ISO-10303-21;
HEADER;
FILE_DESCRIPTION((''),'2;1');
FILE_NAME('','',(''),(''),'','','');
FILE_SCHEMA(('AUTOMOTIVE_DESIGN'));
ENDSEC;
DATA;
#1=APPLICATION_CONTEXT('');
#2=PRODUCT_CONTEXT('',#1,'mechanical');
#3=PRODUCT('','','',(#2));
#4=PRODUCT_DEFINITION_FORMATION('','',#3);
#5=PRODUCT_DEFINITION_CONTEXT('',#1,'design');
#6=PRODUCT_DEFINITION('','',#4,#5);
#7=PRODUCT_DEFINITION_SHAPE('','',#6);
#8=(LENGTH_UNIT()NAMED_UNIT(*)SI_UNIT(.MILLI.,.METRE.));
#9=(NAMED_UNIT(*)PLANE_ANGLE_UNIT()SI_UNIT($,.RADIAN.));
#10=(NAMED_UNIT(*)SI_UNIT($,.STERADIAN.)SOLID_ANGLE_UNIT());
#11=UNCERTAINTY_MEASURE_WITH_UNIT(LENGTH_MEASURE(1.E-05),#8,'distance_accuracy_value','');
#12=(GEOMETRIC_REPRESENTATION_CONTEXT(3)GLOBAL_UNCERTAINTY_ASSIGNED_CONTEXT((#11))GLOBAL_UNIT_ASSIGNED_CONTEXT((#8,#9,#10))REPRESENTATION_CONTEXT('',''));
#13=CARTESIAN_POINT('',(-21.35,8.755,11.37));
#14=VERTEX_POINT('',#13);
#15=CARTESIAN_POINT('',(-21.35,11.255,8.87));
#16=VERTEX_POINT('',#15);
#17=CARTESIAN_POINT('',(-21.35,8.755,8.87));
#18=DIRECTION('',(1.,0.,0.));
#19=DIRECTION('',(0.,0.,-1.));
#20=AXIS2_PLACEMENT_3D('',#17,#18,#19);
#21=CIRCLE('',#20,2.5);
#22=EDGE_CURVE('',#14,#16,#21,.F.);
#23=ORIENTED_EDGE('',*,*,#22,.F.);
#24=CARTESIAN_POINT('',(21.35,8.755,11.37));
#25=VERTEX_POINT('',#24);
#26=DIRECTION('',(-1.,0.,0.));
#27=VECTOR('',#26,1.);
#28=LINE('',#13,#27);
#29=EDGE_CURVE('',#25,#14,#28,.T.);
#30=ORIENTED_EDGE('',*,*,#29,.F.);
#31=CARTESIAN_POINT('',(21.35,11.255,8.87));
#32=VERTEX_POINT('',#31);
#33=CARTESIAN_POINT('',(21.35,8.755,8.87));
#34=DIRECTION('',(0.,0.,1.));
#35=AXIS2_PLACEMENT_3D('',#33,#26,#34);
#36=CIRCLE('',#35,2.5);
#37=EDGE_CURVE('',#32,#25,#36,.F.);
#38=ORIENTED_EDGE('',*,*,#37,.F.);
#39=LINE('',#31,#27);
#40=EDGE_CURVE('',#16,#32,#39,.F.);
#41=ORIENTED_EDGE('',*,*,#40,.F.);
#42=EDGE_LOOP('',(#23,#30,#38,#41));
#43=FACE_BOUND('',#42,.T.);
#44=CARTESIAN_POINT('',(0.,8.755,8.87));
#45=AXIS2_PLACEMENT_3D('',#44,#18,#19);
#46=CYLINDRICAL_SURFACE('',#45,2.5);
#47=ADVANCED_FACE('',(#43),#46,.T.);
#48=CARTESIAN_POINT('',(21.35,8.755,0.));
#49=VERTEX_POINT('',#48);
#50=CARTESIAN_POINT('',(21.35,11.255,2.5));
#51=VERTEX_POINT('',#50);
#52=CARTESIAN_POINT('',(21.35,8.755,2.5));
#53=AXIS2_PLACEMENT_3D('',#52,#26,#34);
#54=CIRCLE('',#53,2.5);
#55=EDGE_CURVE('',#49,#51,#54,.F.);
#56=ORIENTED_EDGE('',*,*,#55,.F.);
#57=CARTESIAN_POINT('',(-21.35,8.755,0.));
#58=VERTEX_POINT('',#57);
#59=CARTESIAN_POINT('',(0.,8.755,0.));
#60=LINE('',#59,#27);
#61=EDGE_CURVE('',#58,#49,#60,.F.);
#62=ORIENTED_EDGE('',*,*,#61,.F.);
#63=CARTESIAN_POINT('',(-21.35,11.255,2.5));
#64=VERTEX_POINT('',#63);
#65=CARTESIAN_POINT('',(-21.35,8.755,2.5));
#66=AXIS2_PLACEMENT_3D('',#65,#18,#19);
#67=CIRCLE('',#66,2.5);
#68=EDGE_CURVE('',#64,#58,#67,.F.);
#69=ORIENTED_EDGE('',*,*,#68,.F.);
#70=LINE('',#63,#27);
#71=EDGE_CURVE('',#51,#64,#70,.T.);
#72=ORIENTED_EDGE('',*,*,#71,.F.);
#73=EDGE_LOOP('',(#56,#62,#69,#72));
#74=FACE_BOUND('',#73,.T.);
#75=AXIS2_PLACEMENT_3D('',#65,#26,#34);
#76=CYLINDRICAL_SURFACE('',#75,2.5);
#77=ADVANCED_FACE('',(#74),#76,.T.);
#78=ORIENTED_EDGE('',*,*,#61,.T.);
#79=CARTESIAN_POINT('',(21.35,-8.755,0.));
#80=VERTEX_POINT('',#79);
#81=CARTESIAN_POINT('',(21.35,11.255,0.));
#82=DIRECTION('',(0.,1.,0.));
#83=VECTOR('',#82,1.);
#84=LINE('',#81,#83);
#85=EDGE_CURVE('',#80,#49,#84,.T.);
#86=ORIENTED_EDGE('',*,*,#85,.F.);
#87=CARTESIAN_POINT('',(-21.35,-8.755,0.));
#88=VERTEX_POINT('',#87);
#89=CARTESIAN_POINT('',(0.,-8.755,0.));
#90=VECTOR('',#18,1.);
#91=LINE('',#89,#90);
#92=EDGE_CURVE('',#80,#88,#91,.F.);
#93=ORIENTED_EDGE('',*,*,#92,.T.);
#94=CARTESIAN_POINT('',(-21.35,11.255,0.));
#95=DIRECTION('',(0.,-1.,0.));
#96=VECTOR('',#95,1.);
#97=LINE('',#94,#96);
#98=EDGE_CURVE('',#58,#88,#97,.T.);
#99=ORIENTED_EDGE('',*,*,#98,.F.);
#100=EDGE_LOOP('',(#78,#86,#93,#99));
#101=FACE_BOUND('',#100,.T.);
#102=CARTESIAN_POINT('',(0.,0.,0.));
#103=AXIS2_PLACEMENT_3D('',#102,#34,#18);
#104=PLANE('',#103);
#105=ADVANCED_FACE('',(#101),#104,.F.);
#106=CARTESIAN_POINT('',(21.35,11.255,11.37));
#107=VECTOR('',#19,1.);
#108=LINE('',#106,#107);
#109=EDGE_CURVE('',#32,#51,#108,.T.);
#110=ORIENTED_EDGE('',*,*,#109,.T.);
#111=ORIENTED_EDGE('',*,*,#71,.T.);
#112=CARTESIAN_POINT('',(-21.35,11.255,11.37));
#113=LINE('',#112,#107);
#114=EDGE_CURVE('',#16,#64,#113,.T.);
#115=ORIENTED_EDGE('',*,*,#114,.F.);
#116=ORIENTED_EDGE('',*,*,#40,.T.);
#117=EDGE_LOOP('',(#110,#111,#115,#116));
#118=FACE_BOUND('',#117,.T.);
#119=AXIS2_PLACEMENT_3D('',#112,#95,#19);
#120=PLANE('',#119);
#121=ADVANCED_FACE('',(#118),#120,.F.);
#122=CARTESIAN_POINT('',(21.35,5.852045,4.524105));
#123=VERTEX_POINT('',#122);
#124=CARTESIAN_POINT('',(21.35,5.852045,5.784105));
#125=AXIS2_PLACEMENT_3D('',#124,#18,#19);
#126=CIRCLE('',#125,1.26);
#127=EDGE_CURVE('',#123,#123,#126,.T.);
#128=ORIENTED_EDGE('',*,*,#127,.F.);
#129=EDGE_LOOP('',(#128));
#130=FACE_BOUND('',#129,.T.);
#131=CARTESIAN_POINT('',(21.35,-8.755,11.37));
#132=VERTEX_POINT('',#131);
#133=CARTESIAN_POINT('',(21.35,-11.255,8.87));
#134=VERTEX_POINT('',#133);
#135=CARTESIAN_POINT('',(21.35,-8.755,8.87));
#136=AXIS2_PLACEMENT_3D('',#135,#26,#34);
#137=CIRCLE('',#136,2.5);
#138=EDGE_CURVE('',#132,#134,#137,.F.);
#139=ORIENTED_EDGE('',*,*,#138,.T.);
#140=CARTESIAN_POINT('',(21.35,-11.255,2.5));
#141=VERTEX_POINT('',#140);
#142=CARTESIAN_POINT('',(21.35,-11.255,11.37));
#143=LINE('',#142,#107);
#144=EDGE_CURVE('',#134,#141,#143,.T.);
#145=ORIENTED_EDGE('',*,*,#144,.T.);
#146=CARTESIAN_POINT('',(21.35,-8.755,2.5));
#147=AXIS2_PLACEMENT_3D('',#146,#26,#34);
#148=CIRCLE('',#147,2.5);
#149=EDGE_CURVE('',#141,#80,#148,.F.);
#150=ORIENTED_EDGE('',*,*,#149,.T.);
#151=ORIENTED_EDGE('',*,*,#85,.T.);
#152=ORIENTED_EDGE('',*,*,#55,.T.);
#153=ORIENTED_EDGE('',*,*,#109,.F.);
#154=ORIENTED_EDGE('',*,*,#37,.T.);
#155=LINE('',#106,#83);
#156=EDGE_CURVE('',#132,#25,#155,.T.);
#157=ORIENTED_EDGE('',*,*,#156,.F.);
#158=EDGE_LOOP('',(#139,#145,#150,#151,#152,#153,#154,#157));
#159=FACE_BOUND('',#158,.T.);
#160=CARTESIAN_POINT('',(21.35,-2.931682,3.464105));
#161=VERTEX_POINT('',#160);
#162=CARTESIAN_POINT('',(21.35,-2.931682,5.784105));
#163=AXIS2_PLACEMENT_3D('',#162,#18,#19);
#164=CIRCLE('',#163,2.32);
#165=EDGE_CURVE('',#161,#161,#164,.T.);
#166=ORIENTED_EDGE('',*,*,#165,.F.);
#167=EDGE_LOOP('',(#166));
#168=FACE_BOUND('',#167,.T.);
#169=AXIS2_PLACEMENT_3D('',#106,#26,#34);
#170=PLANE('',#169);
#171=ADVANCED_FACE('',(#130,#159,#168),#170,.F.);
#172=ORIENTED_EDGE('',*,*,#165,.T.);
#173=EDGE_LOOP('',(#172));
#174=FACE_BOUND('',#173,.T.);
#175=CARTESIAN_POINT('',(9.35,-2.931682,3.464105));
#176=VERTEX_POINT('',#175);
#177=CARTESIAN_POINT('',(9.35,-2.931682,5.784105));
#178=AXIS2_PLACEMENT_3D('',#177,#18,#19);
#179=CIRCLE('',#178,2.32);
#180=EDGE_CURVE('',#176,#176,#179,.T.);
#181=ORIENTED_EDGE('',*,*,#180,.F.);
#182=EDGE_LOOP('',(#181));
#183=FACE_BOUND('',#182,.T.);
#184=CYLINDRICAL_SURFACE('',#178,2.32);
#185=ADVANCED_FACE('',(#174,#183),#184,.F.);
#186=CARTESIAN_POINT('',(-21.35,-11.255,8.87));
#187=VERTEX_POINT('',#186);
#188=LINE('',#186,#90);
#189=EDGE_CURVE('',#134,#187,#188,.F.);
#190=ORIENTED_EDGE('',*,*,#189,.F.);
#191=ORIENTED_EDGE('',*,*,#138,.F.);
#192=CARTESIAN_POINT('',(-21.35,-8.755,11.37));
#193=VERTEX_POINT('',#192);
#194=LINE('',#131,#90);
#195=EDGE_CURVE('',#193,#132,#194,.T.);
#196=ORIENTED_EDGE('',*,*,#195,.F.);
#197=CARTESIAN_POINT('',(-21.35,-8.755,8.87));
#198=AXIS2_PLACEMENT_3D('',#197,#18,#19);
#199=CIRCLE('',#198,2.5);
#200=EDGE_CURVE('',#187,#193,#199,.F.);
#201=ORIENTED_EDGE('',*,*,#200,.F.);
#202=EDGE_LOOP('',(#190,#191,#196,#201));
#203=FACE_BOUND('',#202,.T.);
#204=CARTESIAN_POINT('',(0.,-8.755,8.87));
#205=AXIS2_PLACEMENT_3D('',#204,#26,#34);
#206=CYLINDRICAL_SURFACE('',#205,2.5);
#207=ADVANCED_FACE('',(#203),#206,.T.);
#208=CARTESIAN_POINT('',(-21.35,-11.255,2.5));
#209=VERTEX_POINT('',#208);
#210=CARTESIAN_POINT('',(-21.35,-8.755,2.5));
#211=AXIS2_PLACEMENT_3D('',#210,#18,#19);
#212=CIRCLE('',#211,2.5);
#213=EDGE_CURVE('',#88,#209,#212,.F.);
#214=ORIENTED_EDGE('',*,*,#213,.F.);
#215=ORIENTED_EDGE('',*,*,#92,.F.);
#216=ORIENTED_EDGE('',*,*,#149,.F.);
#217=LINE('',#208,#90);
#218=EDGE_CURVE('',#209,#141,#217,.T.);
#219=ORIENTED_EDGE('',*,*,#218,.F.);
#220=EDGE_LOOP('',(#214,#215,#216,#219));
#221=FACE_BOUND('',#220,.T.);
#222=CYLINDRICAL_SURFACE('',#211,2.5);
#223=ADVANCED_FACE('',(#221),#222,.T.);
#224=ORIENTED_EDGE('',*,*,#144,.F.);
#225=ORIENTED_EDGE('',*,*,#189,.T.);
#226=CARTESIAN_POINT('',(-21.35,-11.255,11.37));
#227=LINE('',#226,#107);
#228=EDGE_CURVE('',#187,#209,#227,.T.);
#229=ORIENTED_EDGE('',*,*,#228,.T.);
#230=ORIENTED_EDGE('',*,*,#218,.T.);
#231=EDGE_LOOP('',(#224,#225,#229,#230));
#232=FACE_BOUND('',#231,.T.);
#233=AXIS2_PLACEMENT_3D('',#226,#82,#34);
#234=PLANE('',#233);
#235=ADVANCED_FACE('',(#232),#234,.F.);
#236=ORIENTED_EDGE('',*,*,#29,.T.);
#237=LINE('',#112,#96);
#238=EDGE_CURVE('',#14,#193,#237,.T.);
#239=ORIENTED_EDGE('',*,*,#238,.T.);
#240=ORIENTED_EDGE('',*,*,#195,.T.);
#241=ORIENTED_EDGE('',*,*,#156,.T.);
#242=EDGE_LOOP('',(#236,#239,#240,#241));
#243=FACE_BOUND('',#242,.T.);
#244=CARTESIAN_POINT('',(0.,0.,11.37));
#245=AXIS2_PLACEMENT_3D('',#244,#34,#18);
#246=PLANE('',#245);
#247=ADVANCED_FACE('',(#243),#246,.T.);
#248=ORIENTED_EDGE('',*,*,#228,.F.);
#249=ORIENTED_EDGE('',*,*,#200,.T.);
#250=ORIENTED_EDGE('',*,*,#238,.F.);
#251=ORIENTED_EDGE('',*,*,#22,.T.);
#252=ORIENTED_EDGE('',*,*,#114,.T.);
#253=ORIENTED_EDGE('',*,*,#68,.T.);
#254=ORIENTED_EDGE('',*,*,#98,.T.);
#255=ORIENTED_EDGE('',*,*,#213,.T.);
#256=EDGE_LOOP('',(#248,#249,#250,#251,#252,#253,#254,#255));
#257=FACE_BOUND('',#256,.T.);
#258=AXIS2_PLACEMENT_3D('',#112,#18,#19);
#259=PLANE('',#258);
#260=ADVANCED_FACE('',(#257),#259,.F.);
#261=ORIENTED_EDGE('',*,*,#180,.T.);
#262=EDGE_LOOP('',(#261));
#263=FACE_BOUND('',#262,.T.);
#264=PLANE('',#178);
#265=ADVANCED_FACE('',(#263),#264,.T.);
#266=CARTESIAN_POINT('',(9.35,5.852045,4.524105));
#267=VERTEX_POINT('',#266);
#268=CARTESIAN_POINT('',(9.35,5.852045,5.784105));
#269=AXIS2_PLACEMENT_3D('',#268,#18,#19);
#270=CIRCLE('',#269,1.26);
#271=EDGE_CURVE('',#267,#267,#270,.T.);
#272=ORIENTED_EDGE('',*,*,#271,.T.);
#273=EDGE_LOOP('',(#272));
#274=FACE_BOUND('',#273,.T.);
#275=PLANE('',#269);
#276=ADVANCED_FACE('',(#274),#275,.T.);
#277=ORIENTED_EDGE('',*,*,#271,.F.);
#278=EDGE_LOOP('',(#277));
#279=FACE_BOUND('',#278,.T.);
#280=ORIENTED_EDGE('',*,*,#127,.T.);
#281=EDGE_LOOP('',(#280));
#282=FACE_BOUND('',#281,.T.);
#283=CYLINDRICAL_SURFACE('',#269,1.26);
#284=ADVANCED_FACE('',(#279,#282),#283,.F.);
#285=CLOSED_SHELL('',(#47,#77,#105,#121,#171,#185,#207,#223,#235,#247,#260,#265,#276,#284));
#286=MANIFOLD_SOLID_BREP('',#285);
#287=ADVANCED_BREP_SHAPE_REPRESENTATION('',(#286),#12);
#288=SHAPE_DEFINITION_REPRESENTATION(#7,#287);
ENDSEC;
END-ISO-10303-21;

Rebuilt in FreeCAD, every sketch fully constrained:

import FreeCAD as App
import Part
import Sketcher
Q = App.Units.Quantity


def edges_at(feature, points):
    """Names of the edges that pass closest to the given points."""
    edges = feature.Shape.Edges
    near = lambda p: min(range(len(edges)), key=lambda i: edges[i].distToShape(Part.Vertex(*p))[0])
    return sorted({f"Edge{near(p) + 1}" for p in points})

doc = App.newDocument("Part")
body = doc.addObject("PartDesign::Body", "Body")

# Sketch on XY plane
sketch1 = body.newObject("Sketcher::SketchObject", "Sketch")
sketch1.AttachmentSupport = (doc.getObject("XY_Plane"), [""])
sketch1.MapMode = "FlatFace"
sketch1.addGeometry(Part.LineSegment(App.Vector(-21, 11, 0), App.Vector(-21, -11, 0)), False)
sketch1.addGeometry(Part.LineSegment(App.Vector(-21, -11, 0), App.Vector(21, -11, 0)), False)
sketch1.addGeometry(Part.LineSegment(App.Vector(21, -11, 0), App.Vector(21, 11, 0)), False)
sketch1.addGeometry(Part.LineSegment(App.Vector(21, 11, 0), App.Vector(-21, 11, 0)), False)
sketch1.addConstraint(Sketcher.Constraint("Coincident", 0, 2, 1, 1))
sketch1.addConstraint(Sketcher.Constraint("Coincident", 1, 2, 2, 1))
sketch1.addConstraint(Sketcher.Constraint("Coincident", 2, 2, 3, 1))
sketch1.addConstraint(Sketcher.Constraint("Coincident", 3, 2, 0, 1))
sketch1.addConstraint(Sketcher.Constraint("Vertical", 0))
sketch1.addConstraint(Sketcher.Constraint("Horizontal", 1))
sketch1.addConstraint(Sketcher.Constraint("Vertical", 2))
sketch1.addConstraint(Sketcher.Constraint("Horizontal", 3))
sketch1.addConstraint(Sketcher.Constraint("Symmetric", 0, 2, 2, 2, -1, 1))
sketch1.addConstraint(Sketcher.Constraint("DistanceX", 1, 1, 1, 2, Q("42.7 mm")))
sketch1.addConstraint(Sketcher.Constraint("DistanceY", 0, 2, 0, 1, Q("22.51 mm")))
pad1 = body.newObject("PartDesign::Pad", "Pad")
pad1.Profile = sketch1
pad1.Length = 11.37
doc.recompute()

fillet = body.newObject("PartDesign::Fillet", "Fillet")
fillet.Base = (pad1, edges_at(pad1, [
    (0, -11.255, 11.37),
    (0, -11.255, 0),
    (0, 11.255, 0),
    (0, 11.255, 11.37),
]))
fillet.Radius = 2.5

# Sketch on YZ plane
sketch2 = body.newObject("Sketcher::SketchObject", "Sketch001")
sketch2.AttachmentSupport = (doc.getObject("YZ_Plane"), [""])
sketch2.MapMode = "FlatFace"
sketch2.AttachmentOffset = App.Placement(App.Vector(0, 0, 21.35), App.Rotation())
sketch2.addGeometry(Part.Circle(App.Vector(5.9, 5.8, 0), App.Vector(0, 0, 1), 1.3), False)
sketch2.addGeometry(Part.Circle(App.Vector(-2.9, 5.8, 0), App.Vector(0, 0, 1), 2.3), False)
sketch2.addConstraint(Sketcher.Constraint("Horizontal", 0, 3, 1, 3))
sketch2.addConstraint(Sketcher.Constraint("Diameter", 0, Q("2.52 mm")))
sketch2.addConstraint(Sketcher.Constraint("Diameter", 1, Q("4.64 mm")))
sketch2.addConstraint(Sketcher.Constraint("DistanceX", 1, 3, -1, 1, Q("2.931682 mm")))
sketch2.addConstraint(Sketcher.Constraint("DistanceX", -1, 1, 0, 3, Q("5.852045 mm")))
sketch2.addConstraint(Sketcher.Constraint("DistanceY", -1, 1, 0, 3, Q("5.784105 mm")))
pocket1 = body.newObject("PartDesign::Pocket", "Pocket")
pocket1.Profile = sketch2
pocket1.Length = 12

doc.recompute()
